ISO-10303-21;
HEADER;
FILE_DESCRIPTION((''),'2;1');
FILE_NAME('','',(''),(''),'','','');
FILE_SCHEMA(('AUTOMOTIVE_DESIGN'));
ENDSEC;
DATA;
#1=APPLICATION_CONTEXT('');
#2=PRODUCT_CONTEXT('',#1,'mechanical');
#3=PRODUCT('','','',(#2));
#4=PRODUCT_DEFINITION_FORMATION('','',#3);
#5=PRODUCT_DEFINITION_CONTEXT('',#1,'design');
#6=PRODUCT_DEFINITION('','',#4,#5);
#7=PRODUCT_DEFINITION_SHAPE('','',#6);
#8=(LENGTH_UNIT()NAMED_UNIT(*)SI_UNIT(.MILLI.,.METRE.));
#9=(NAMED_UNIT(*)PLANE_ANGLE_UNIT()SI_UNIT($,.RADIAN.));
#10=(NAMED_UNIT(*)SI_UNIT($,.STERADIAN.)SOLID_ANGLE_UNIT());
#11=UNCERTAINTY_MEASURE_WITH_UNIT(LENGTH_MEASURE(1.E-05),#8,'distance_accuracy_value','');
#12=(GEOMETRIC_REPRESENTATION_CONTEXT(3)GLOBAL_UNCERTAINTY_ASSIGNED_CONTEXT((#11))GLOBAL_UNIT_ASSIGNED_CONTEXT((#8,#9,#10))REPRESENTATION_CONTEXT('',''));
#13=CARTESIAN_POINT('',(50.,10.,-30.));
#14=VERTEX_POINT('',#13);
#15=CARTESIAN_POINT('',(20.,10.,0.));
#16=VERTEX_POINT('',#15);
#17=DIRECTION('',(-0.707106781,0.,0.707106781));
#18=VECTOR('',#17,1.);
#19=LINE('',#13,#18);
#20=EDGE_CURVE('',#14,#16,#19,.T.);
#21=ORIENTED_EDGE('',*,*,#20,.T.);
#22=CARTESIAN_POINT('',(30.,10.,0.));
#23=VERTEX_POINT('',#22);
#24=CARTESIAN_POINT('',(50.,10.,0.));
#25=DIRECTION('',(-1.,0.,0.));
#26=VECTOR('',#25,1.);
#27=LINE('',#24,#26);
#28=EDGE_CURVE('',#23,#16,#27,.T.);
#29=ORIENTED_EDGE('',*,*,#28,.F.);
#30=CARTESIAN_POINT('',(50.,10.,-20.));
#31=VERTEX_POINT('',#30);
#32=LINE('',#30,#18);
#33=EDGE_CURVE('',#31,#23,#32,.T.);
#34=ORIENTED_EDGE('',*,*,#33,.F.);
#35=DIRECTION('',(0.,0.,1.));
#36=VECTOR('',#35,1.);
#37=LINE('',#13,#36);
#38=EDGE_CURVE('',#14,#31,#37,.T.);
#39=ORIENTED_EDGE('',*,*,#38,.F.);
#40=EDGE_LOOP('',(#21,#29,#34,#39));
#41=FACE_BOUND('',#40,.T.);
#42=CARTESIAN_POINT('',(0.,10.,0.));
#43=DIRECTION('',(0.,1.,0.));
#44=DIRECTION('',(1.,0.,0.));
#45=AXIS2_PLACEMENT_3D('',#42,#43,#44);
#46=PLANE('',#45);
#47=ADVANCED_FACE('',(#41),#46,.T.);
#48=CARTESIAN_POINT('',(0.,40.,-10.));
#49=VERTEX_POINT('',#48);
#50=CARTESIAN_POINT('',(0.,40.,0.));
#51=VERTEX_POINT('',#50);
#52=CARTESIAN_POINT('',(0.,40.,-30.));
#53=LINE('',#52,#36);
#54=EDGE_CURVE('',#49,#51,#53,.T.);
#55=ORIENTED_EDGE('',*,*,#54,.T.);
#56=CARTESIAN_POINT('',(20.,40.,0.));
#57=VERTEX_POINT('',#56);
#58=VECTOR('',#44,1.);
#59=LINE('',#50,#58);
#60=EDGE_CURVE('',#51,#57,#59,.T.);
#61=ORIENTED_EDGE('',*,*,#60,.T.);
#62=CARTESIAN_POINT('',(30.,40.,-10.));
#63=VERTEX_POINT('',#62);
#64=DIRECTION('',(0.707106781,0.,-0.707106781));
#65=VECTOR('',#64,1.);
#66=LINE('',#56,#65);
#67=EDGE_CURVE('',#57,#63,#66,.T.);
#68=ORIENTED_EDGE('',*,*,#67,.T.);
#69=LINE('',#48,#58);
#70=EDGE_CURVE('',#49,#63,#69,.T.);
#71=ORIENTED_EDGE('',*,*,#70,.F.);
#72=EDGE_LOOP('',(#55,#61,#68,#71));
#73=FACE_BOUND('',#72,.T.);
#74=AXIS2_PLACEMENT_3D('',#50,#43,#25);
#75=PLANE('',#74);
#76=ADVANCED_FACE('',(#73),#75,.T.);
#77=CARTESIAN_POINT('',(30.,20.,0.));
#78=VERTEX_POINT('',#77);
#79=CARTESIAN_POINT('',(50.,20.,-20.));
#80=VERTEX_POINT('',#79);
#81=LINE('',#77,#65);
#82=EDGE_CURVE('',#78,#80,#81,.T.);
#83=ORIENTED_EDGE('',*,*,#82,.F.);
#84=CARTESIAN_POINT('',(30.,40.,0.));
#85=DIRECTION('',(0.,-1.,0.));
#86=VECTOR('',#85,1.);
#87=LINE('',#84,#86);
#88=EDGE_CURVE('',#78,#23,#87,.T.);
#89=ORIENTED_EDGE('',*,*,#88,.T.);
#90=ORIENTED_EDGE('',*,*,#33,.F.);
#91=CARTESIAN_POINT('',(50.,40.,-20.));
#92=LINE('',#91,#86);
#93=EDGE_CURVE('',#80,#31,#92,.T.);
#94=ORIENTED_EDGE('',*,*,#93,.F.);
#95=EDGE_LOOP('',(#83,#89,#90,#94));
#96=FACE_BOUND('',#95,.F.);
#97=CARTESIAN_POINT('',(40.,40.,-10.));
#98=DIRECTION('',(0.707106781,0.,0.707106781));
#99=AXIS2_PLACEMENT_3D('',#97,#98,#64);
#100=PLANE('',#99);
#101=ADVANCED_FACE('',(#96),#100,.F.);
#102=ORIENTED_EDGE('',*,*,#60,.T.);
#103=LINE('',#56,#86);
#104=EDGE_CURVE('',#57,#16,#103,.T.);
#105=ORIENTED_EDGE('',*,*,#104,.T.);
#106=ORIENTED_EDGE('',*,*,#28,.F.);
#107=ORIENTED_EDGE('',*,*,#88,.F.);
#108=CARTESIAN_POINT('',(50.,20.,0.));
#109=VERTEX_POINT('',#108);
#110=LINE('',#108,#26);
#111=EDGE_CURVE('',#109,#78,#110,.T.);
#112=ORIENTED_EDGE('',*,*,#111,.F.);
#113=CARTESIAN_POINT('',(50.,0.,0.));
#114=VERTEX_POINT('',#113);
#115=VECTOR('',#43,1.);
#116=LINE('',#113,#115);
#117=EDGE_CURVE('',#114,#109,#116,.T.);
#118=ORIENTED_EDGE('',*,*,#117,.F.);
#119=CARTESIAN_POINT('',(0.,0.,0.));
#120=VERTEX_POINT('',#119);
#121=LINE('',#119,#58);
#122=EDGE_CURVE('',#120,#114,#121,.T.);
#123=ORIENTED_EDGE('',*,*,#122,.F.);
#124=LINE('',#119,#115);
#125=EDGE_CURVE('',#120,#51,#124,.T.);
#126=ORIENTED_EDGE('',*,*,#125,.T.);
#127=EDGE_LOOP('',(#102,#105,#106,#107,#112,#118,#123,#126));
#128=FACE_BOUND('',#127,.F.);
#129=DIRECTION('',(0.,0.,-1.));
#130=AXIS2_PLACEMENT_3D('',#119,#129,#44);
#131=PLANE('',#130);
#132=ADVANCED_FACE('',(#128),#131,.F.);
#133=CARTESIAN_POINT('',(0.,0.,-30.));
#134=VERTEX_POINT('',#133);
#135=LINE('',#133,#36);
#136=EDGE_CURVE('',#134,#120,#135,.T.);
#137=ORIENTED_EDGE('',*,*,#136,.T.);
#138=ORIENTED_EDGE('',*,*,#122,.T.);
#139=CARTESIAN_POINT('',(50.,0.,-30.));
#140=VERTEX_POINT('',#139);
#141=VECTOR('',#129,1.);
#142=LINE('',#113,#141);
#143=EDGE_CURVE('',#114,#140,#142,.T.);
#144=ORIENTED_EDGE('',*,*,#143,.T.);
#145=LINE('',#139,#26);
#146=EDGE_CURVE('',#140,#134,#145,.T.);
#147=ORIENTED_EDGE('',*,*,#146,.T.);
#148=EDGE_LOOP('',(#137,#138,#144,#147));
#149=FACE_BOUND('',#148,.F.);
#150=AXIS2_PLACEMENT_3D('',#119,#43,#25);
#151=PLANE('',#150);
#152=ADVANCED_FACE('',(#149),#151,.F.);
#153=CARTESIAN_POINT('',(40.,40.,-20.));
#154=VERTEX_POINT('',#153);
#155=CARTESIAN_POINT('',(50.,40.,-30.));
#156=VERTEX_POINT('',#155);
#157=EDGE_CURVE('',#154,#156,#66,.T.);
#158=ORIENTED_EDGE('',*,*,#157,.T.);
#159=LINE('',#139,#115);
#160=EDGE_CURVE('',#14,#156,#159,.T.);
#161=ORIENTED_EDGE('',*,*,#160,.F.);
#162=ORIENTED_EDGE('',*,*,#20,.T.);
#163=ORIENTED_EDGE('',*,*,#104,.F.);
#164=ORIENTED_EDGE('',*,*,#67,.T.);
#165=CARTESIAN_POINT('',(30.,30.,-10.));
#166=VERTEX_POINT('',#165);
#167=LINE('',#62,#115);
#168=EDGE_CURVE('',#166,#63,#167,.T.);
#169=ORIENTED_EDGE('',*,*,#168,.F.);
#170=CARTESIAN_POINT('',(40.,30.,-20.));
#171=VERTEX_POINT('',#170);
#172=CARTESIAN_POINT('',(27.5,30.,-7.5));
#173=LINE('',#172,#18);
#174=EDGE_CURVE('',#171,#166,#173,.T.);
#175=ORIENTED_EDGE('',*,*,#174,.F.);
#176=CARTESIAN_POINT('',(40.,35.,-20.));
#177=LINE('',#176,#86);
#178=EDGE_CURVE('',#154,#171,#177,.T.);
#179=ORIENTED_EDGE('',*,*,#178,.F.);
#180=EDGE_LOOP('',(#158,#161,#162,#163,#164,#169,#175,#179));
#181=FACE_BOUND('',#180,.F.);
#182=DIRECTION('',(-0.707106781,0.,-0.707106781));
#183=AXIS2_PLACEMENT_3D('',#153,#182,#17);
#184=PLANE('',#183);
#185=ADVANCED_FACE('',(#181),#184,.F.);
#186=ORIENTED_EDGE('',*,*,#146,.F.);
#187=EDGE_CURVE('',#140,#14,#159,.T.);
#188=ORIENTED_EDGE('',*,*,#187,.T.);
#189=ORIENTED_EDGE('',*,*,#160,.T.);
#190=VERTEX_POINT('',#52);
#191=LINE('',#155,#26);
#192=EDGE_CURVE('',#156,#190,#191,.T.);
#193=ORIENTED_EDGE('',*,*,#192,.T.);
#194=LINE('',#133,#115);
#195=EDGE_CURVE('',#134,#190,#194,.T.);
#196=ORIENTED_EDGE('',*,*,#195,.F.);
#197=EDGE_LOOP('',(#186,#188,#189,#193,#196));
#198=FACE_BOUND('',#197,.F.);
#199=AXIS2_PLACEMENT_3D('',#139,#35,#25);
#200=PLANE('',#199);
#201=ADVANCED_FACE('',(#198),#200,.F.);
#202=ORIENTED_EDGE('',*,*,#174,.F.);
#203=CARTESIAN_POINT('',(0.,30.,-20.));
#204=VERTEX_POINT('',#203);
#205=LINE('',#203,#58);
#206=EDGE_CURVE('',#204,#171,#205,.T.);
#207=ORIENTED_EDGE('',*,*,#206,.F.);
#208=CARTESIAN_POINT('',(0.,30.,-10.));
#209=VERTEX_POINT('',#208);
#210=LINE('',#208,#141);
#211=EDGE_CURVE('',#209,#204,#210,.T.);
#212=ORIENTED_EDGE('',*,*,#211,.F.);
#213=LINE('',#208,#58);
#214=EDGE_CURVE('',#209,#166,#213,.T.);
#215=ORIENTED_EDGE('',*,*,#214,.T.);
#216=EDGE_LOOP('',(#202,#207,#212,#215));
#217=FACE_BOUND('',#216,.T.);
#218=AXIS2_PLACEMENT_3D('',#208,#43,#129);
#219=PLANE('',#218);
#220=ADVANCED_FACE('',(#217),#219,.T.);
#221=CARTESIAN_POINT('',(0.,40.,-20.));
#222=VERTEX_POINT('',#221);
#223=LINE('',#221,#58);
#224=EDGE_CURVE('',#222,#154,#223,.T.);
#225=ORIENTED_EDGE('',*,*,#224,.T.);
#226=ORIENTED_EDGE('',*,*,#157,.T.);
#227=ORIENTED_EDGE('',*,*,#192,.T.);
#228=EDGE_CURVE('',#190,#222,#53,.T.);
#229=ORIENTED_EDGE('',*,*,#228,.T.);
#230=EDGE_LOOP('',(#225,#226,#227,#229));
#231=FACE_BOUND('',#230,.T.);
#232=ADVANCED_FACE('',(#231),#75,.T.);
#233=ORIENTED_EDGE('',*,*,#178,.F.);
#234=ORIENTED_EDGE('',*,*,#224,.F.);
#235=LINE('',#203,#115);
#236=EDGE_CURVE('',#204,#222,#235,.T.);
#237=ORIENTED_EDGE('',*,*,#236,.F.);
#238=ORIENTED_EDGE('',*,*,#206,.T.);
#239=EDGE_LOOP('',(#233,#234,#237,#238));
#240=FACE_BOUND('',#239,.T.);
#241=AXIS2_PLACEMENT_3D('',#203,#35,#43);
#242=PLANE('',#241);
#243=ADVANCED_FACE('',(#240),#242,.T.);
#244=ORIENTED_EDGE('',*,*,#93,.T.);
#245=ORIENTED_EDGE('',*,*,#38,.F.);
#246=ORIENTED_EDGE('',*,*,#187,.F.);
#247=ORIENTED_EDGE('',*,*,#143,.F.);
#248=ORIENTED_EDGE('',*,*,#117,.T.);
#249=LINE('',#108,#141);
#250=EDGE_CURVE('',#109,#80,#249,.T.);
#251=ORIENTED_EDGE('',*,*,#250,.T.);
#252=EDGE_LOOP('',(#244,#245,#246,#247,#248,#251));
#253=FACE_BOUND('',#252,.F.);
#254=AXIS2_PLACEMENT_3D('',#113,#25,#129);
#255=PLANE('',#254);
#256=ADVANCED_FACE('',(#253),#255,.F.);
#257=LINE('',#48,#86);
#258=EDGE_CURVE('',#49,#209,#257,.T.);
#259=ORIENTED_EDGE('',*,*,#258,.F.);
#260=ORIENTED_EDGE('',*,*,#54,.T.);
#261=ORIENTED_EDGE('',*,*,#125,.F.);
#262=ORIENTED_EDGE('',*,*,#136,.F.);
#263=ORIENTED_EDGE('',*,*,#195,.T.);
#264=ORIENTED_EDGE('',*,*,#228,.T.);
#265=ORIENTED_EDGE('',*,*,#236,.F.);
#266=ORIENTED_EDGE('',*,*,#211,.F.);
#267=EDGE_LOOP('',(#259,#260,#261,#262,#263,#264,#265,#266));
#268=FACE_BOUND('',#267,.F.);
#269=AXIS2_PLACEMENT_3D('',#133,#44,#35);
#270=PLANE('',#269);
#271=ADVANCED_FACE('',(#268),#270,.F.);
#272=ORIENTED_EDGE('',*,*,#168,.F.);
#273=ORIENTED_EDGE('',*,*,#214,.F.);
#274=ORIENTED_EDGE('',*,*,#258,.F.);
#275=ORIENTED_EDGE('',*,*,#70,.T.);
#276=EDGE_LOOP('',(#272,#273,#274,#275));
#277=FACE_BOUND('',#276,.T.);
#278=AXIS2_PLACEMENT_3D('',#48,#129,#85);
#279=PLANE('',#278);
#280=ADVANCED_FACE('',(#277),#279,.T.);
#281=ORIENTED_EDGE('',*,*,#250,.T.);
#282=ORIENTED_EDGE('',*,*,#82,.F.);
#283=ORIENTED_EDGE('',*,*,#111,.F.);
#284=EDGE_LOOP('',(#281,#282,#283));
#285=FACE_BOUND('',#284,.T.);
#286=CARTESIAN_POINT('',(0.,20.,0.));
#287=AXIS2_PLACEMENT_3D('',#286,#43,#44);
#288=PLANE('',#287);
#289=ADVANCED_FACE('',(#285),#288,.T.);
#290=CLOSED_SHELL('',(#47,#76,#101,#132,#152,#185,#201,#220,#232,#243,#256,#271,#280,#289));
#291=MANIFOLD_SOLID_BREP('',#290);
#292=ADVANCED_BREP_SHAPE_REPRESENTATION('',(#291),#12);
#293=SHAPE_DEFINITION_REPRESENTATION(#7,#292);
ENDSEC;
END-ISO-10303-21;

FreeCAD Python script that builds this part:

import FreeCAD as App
import Part
import Sketcher
Q = App.Units.Quantity


def add_polygon(sketch, points):
    """Adds a closed chain of lines whose ends are joined by coincident constraints."""
    first, n = sketch.GeometryCount, len(points)
    for a, b in zip(points, points[1:] + points[:1]):
        sketch.addGeometry(Part.LineSegment(App.Vector(*a, 0), App.Vector(*b, 0)), False)
    for i in range(n):
        sketch.addConstraint(Sketcher.Constraint("Coincident", first + i, 2, first + (i + 1) % n, 1))

doc = App.newDocument("Part")
body = doc.addObject("PartDesign::Body", "Body")

# Sketch on XZ plane
sketch1 = doc.addObject("Sketcher::SketchObject", "Sketch")
body.addObject(sketch1)
sketch1.AttachmentSupport = (doc.XZ_Plane, [""])
sketch1.MapMode = "FlatFace"
add_polygon(sketch1, [(0, -30), (0, 0), (50, 0), (50, -30)])  # lines 0-3
sketch1.addConstraint([
    Sketcher.Constraint("Vertical", 0),
    Sketcher.Constraint("Horizontal", 1),
    Sketcher.Constraint("Vertical", 2),
    Sketcher.Constraint("Horizontal", 3),
    Sketcher.Constraint("Coincident", 0, 2, -1, 1),
    Sketcher.Constraint("DistanceX", 1, 1, 1, 2, Q("50 mm")),
    Sketcher.Constraint("DistanceY", 0, 1, 0, 2, Q("30 mm")),
])
pad1 = doc.addObject("PartDesign::Pad", "Pad")
body.addObject(pad1)
pad1.Profile = sketch1
pad1.Length = 40
pad1.Reversed = True

# Sketch on YZ plane
sketch2 = doc.addObject("Sketcher::SketchObject", "Sketch001")
body.addObject(sketch2)
sketch2.AttachmentSupport = (doc.YZ_Plane, [""])
sketch2.MapMode = "FlatFace"
add_polygon(sketch2, [(40, -10), (40, -20), (30, -20), (30, -10)])  # lines 0-3
sketch2.addConstraint([
    Sketcher.Constraint("Vertical", 0),
    Sketcher.Constraint("Horizontal", 1),
    Sketcher.Constraint("Vertical", 2),
    Sketcher.Constraint("Horizontal", 3),
    Sketcher.Constraint("Equal", 3, 0),
    Sketcher.Constraint("DistanceX", 1, 2, 1, 1, Q("10 mm")),
    Sketcher.Constraint("DistanceY", 2, 2, -1, 1, Q("10 mm")),
    Sketcher.Constraint("DistanceX", -1, 1, 0, 2, Q("40 mm")),
])
pocket1 = doc.addObject("PartDesign::Pocket", "Pocket")
body.addObject(pocket1)
pocket1.Profile = sketch2
pocket1.Length = 70.25
pocket1.Reversed = True

# Sketch on XZ plane
sketch3 = doc.addObject("Sketcher::SketchObject", "Sketch002")
body.addObject(sketch3)
sketch3.AttachmentSupport = (doc.XZ_Plane, [""])
sketch3.MapMode = "FlatFace"
sketch3.AttachmentOffset = App.Placement(App.Vector(0, 0, -40), App.Rotation())
add_polygon(sketch3, [(20, 0), (30, 0), (50, -20), (50, -30)])  # lines 0-3
sketch3.addConstraint([
    Sketcher.Constraint("Horizontal", 0),
    Sketcher.Constraint("Vertical", 2),
    Sketcher.Constraint("PointOnObject", 0, 2, -1),
    Sketcher.Constraint("Parallel", 1, 3),
    Sketcher.Constraint("Equal", 0, 2),
    Sketcher.Constraint("DistanceX", -1, 1, 0, 2, Q("30 mm")),
    Sketcher.Constraint("DistanceY", 1, 2, -1, 1, Q("20 mm")),
    Sketcher.Constraint("DistanceY", 2, 2, -1, 1, Q("30 mm")),
])
pocket2 = doc.addObject("PartDesign::Pocket", "Pocket001")
body.addObject(pocket2)
pocket2.Profile = sketch3
pocket2.Length = 30
pocket2.Reversed = True

# Sketch on XZ plane
sketch4 = doc.addObject("Sketcher::SketchObject", "Sketch003")
body.addObject(sketch4)
sketch4.AttachmentSupport = (doc.XZ_Plane, [""])
sketch4.MapMode = "FlatFace"
sketch4.AttachmentOffset = App.Placement(App.Vector(0, 0, -40), App.Rotation())
add_polygon(sketch4, [(50, 0), (50, -20), (30, 0)])  # lines 0-2
sketch4.addConstraint([
    Sketcher.Constraint("Vertical", 0),
    Sketcher.Constraint("Horizontal", 2),
    Sketcher.Constraint("PointOnObject", 1, 2, -1),
    Sketcher.Constraint("Equal", 2, 0),
    Sketcher.Constraint("DistanceX", 2, 1, 2, 2, Q("20 mm")),
    Sketcher.Constraint("DistanceX", -1, 1, 0, 2, Q("50 mm")),
])
pocket3 = doc.addObject("PartDesign::Pocket", "Pocket002")
body.addObject(pocket3)
pocket3.Profile = sketch4
pocket3.Length = 20
pocket3.Reversed = True

doc.recompute()
